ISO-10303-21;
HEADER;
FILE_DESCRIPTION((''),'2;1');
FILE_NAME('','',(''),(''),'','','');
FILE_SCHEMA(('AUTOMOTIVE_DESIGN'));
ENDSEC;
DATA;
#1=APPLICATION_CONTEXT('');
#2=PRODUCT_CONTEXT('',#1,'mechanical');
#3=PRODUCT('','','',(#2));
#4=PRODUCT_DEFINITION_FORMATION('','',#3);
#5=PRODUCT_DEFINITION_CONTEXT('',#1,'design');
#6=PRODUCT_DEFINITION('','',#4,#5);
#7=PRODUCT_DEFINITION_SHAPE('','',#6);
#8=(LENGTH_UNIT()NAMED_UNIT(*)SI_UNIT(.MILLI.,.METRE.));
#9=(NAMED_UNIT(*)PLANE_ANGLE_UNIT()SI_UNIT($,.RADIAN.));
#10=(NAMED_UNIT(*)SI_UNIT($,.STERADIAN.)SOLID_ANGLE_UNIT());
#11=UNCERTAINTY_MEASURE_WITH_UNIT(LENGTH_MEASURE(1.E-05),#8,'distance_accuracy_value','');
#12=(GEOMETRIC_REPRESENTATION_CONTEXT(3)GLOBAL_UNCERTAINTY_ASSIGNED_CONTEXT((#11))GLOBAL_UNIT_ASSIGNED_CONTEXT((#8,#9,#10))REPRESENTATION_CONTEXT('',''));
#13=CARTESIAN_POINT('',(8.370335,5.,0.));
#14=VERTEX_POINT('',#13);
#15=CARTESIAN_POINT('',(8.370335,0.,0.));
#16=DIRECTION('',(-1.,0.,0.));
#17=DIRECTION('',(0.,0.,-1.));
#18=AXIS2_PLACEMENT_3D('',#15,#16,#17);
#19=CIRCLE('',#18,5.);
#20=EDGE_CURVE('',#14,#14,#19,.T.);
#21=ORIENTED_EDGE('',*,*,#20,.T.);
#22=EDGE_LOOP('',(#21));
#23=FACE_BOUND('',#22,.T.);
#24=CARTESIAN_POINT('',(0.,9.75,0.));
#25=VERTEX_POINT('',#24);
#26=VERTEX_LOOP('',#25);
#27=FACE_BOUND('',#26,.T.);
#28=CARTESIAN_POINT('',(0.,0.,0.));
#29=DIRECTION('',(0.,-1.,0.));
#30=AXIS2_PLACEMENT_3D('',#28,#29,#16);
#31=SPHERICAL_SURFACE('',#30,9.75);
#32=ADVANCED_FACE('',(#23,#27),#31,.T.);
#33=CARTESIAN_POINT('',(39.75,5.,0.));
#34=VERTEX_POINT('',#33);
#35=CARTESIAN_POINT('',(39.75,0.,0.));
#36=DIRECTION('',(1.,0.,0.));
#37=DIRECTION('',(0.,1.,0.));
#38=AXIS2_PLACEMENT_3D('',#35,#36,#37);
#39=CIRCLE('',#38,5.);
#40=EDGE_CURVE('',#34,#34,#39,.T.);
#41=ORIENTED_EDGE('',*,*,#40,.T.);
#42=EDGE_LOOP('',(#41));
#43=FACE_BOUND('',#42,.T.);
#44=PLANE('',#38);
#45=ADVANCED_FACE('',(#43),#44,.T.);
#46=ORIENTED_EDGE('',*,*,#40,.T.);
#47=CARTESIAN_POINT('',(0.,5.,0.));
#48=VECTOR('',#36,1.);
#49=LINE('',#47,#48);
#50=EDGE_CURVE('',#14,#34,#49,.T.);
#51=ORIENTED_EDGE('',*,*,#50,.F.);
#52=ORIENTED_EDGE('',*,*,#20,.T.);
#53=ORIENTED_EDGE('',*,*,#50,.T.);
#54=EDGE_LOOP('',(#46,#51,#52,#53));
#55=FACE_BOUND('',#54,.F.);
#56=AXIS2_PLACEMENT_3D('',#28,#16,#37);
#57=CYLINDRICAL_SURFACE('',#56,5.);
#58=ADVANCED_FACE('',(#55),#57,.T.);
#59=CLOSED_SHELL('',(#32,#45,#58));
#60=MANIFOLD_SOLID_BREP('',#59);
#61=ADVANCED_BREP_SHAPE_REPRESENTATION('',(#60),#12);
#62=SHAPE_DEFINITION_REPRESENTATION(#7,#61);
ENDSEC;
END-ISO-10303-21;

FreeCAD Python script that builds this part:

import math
import FreeCAD as App
import Part
import Sketcher
from FreeCAD import Vector
Q = App.Units.Quantity

doc = App.newDocument("Part")
params = doc.addObject("Spreadsheet::Sheet", "Params")
for row, (alias, value) in enumerate([
    ("sketch1_radius", "9.75 mm"),
    ("revolution_angle", "360 deg"),
    ("sketch2_diameter", "10 mm"),
    ("pad1_length", "39.75 mm"),
], start=1):
    params.set(f"A{row}", alias)
    params.set(f"B{row}", "=" + value)
    params.setAlias(f"B{row}", alias)

body = doc.addObject("PartDesign::Body", "Body")

# Sketch on XY plane
sketch1 = body.newObject("Sketcher::SketchObject", "Sketch")
sketch1.AttachmentSupport = (doc.getObject("XY_Plane"), [""])
sketch1.MapMode = "FlatFace"
sketch1.addGeometry([
    Part.LineSegment(Vector(0, -9.75, 0), Vector(0, 9.75, 0)),
    Part.ArcOfCircle(Part.Circle(Vector(0, 0, 0), Vector(0, 0, 1), 9.75), math.radians(90), math.radians(270)),
], False)
sketch1.addConstraint([
    Sketcher.Constraint("Coincident", 0, 1, 1, 2),
    Sketcher.Constraint("Coincident", 1, 1, 0, 2),
    Sketcher.Constraint("Vertical", 0),
    Sketcher.Constraint("Coincident", 1, 3, -1, 1),
    Sketcher.Constraint("PointOnObject", 0, 1, -2),
    Sketcher.Constraint("Radius", 1, Q("9.75 mm")),
])
sketch1.setExpression("Constraints[5]", "Params.sketch1_radius")
revolution = body.newObject("PartDesign::Revolution", "Revolution")
revolution.Profile = sketch1
revolution.ReferenceAxis = (sketch1, ["V_Axis"])
revolution.setExpression("Angle", "Params.revolution_angle")

# Sketch on YZ plane
sketch2 = body.newObject("Sketcher::SketchObject", "Sketch001")
sketch2.AttachmentSupport = (doc.getObject("YZ_Plane"), [""])
sketch2.MapMode = "FlatFace"
sketch2.addGeometry(Part.Circle(Vector(0, 0, 0), Vector(0, 0, 1), 5), False)
sketch2.addConstraint([
    Sketcher.Constraint("Coincident", 0, 3, -1, 1),
    Sketcher.Constraint("Diameter", 0, Q("10 mm")),
])
sketch2.setExpression("Constraints[1]", "Params.sketch2_diameter")
pad1 = body.newObject("PartDesign::Pad", "Pad")
pad1.Profile = sketch2
pad1.setExpression("Length", "Params.pad1_length")

doc.recompute()
